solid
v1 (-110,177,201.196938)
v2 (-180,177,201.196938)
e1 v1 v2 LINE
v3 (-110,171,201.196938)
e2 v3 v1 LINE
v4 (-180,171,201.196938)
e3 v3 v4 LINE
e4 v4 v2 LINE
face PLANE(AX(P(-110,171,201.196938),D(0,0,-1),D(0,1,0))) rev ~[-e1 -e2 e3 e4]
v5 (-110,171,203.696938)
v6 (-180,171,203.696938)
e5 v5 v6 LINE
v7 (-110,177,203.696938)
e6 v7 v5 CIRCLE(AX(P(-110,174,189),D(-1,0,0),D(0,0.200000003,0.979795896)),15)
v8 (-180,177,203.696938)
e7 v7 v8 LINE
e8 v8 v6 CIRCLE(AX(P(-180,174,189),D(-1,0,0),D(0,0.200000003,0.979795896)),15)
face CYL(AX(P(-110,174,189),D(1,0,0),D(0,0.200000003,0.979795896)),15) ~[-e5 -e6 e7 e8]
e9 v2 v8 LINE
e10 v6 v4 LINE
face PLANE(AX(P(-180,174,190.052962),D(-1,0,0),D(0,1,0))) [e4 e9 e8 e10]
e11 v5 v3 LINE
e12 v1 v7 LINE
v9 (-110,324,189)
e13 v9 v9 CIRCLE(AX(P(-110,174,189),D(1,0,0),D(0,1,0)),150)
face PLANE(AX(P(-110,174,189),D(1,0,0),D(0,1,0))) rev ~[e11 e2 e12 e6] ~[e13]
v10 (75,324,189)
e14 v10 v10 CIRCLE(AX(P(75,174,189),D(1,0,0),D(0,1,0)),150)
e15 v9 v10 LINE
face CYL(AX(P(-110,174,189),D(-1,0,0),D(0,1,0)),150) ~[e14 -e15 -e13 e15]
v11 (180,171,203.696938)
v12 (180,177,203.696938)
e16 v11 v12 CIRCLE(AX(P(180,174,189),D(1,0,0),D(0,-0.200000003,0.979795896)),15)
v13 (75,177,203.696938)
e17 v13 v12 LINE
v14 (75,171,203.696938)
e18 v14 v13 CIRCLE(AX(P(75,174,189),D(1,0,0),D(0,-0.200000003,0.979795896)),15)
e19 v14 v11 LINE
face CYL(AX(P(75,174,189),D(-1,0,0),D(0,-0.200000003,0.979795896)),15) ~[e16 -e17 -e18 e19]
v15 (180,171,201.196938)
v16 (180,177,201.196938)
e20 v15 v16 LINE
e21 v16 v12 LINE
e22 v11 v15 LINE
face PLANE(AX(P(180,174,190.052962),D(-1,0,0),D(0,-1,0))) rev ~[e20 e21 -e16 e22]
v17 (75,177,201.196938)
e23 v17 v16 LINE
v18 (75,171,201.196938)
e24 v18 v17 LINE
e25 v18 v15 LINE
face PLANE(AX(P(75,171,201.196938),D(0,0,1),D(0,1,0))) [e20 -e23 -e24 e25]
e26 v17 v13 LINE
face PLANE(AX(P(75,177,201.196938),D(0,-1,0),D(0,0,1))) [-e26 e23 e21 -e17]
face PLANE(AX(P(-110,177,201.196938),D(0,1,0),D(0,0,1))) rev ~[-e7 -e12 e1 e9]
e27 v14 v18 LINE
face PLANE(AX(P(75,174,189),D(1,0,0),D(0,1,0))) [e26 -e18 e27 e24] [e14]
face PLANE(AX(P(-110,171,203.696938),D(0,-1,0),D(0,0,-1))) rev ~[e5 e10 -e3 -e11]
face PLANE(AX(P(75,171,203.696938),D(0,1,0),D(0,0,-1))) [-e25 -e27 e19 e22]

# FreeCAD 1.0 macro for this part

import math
import FreeCAD as App
import Part
import Sketcher
from FreeCAD import Vector
Q = App.Units.Quantity

doc = App.newDocument("Part")
body = doc.addObject("PartDesign::Body", "Body")

# Sketch on YZ plane
sketch1 = doc.addObject("Sketcher::SketchObject", "Sketch")
body.addObject(sketch1)
sketch1.AttachmentSupport = (doc.YZ_Plane, [""])
sketch1.MapMode = "FlatFace"
sketch1.addGeometry(Part.Circle(Vector(0, 0, 0), Vector(0, 0, 1), 150), False)
sketch1.addConstraint([
    Sketcher.Constraint("Coincident", 0, 3, -1, 1),
    Sketcher.Constraint("Diameter", 0, Q("300 mm")),
])
pad1 = doc.addObject("PartDesign::Pad", "Pad")
body.addObject(pad1)
pad1.Profile = sketch1
pad1.Length = 185

# Sketch on YZ plane
sketch2 = doc.addObject("Sketcher::SketchObject", "Sketch001")
body.addObject(sketch2)
sketch2.AttachmentSupport = (doc.YZ_Plane, [""])
sketch2.MapMode = "FlatFace"
sketch2.AttachmentOffset = App.Placement(Vector(0, 0, 185), App.Rotation())
sketch2.addGeometry([
    Part.LineSegment(Vector(-3, 12.2, 0), Vector(-3, 14.7, 0)),
    Part.ArcOfCircle(Part.Circle(Vector(0, 0, 0), Vector(0, 0, 1), 15), math.radians(102), math.radians(438)),
    Part.LineSegment(Vector(3, 14.7, 0), Vector(3, 12.2, 0)),
    Part.LineSegment(Vector(3, 12.2, 0), Vector(-3, 12.2, 0)),
], False)
sketch2.addConstraint([
    Sketcher.Constraint("Coincident", 0, 2, 1, 1),
    Sketcher.Constraint("Coincident", 1, 2, 2, 1),
    Sketcher.Constraint("Coincident", 2, 2, 3, 1),
    Sketcher.Constraint("Coincident", 3, 2, 0, 1),
    Sketcher.Constraint("Vertical", 0),
    Sketcher.Constraint("Vertical", 2),
    Sketcher.Constraint("Horizontal", 3),
    Sketcher.Constraint("Coincident", 1, 3, -1, 1),
    Sketcher.Constraint("Horizontal", 0, 2, 1, 2),
    Sketcher.Constraint("Radius", 1, Q("15 mm")),
    Sketcher.Constraint("DistanceX", 3, 2, 3, 1, Q("6 mm")),
    Sketcher.Constraint("DistanceY", 0, 1, 0, 2, Q("2.5 mm")),
])
pad2 = doc.addObject("PartDesign::Pad", "Pad001")
body.addObject(pad2)
pad2.Profile = sketch2
pad2.Length = 105

# Sketch on YZ plane
sketch3 = doc.addObject("Sketcher::SketchObject", "Sketch002")
body.addObject(sketch3)
sketch3.AttachmentSupport = (doc.YZ_Plane, [""])
sketch3.MapMode = "FlatFace"
sketch3.addGeometry([
    Part.LineSegment(Vector(-3, 14.7, 0), Vector(-3, 12.2, 0)),
    Part.LineSegment(Vector(-3, 12.2, 0), Vector(3, 12.2, 0)),
    Part.LineSegment(Vector(3, 12.2, 0), Vector(3, 14.7, 0)),
    Part.ArcOfCircle(Part.Circle(Vector(0, 0, 0), Vector(0, 0, 1), 15), math.radians(102), math.radians(438)),
], False)
sketch3.addConstraint([
    Sketcher.Constraint("Coincident", 0, 2, 1, 1),
    Sketcher.Constraint("Coincident", 1, 2, 2, 1),
    Sketcher.Constraint("Coincident", 2, 2, 3, 2),
    Sketcher.Constraint("Coincident", 3, 1, 0, 1),
    Sketcher.Constraint("Vertical", 0),
    Sketcher.Constraint("Horizontal", 1),
    Sketcher.Constraint("Vertical", 2),
    Sketcher.Constraint("Coincident", 3, 3, -1, 1),
    Sketcher.Constraint("Horizontal", 2, 2, 3, 1),
    Sketcher.Constraint("Radius", 3, Q("15 mm")),
    Sketcher.Constraint("DistanceX", 1, 1, 1, 2, Q("6 mm")),
    Sketcher.Constraint("DistanceY", 0, 2, 0, 1, Q("2.5 mm")),
])
pad3 = doc.addObject("PartDesign::Pad", "Pad002")
body.addObject(pad3)
pad3.Profile = sketch3
pad3.Length = 70
pad3.Reversed = True
body2 = doc.addObject("PartDesign::Body", "Body001")
doc.recompute()

body.Placement = App.Placement(Vector(-110, 174, 189), App.Rotation(Vector(0, 0, 1), 0))
boolean = doc.addObject("PartDesign::Boolean", "Boolean")
body2.addObject(boolean)
boolean.Type = "Fuse"
boolean.addObjects([body])

doc.recompute()
